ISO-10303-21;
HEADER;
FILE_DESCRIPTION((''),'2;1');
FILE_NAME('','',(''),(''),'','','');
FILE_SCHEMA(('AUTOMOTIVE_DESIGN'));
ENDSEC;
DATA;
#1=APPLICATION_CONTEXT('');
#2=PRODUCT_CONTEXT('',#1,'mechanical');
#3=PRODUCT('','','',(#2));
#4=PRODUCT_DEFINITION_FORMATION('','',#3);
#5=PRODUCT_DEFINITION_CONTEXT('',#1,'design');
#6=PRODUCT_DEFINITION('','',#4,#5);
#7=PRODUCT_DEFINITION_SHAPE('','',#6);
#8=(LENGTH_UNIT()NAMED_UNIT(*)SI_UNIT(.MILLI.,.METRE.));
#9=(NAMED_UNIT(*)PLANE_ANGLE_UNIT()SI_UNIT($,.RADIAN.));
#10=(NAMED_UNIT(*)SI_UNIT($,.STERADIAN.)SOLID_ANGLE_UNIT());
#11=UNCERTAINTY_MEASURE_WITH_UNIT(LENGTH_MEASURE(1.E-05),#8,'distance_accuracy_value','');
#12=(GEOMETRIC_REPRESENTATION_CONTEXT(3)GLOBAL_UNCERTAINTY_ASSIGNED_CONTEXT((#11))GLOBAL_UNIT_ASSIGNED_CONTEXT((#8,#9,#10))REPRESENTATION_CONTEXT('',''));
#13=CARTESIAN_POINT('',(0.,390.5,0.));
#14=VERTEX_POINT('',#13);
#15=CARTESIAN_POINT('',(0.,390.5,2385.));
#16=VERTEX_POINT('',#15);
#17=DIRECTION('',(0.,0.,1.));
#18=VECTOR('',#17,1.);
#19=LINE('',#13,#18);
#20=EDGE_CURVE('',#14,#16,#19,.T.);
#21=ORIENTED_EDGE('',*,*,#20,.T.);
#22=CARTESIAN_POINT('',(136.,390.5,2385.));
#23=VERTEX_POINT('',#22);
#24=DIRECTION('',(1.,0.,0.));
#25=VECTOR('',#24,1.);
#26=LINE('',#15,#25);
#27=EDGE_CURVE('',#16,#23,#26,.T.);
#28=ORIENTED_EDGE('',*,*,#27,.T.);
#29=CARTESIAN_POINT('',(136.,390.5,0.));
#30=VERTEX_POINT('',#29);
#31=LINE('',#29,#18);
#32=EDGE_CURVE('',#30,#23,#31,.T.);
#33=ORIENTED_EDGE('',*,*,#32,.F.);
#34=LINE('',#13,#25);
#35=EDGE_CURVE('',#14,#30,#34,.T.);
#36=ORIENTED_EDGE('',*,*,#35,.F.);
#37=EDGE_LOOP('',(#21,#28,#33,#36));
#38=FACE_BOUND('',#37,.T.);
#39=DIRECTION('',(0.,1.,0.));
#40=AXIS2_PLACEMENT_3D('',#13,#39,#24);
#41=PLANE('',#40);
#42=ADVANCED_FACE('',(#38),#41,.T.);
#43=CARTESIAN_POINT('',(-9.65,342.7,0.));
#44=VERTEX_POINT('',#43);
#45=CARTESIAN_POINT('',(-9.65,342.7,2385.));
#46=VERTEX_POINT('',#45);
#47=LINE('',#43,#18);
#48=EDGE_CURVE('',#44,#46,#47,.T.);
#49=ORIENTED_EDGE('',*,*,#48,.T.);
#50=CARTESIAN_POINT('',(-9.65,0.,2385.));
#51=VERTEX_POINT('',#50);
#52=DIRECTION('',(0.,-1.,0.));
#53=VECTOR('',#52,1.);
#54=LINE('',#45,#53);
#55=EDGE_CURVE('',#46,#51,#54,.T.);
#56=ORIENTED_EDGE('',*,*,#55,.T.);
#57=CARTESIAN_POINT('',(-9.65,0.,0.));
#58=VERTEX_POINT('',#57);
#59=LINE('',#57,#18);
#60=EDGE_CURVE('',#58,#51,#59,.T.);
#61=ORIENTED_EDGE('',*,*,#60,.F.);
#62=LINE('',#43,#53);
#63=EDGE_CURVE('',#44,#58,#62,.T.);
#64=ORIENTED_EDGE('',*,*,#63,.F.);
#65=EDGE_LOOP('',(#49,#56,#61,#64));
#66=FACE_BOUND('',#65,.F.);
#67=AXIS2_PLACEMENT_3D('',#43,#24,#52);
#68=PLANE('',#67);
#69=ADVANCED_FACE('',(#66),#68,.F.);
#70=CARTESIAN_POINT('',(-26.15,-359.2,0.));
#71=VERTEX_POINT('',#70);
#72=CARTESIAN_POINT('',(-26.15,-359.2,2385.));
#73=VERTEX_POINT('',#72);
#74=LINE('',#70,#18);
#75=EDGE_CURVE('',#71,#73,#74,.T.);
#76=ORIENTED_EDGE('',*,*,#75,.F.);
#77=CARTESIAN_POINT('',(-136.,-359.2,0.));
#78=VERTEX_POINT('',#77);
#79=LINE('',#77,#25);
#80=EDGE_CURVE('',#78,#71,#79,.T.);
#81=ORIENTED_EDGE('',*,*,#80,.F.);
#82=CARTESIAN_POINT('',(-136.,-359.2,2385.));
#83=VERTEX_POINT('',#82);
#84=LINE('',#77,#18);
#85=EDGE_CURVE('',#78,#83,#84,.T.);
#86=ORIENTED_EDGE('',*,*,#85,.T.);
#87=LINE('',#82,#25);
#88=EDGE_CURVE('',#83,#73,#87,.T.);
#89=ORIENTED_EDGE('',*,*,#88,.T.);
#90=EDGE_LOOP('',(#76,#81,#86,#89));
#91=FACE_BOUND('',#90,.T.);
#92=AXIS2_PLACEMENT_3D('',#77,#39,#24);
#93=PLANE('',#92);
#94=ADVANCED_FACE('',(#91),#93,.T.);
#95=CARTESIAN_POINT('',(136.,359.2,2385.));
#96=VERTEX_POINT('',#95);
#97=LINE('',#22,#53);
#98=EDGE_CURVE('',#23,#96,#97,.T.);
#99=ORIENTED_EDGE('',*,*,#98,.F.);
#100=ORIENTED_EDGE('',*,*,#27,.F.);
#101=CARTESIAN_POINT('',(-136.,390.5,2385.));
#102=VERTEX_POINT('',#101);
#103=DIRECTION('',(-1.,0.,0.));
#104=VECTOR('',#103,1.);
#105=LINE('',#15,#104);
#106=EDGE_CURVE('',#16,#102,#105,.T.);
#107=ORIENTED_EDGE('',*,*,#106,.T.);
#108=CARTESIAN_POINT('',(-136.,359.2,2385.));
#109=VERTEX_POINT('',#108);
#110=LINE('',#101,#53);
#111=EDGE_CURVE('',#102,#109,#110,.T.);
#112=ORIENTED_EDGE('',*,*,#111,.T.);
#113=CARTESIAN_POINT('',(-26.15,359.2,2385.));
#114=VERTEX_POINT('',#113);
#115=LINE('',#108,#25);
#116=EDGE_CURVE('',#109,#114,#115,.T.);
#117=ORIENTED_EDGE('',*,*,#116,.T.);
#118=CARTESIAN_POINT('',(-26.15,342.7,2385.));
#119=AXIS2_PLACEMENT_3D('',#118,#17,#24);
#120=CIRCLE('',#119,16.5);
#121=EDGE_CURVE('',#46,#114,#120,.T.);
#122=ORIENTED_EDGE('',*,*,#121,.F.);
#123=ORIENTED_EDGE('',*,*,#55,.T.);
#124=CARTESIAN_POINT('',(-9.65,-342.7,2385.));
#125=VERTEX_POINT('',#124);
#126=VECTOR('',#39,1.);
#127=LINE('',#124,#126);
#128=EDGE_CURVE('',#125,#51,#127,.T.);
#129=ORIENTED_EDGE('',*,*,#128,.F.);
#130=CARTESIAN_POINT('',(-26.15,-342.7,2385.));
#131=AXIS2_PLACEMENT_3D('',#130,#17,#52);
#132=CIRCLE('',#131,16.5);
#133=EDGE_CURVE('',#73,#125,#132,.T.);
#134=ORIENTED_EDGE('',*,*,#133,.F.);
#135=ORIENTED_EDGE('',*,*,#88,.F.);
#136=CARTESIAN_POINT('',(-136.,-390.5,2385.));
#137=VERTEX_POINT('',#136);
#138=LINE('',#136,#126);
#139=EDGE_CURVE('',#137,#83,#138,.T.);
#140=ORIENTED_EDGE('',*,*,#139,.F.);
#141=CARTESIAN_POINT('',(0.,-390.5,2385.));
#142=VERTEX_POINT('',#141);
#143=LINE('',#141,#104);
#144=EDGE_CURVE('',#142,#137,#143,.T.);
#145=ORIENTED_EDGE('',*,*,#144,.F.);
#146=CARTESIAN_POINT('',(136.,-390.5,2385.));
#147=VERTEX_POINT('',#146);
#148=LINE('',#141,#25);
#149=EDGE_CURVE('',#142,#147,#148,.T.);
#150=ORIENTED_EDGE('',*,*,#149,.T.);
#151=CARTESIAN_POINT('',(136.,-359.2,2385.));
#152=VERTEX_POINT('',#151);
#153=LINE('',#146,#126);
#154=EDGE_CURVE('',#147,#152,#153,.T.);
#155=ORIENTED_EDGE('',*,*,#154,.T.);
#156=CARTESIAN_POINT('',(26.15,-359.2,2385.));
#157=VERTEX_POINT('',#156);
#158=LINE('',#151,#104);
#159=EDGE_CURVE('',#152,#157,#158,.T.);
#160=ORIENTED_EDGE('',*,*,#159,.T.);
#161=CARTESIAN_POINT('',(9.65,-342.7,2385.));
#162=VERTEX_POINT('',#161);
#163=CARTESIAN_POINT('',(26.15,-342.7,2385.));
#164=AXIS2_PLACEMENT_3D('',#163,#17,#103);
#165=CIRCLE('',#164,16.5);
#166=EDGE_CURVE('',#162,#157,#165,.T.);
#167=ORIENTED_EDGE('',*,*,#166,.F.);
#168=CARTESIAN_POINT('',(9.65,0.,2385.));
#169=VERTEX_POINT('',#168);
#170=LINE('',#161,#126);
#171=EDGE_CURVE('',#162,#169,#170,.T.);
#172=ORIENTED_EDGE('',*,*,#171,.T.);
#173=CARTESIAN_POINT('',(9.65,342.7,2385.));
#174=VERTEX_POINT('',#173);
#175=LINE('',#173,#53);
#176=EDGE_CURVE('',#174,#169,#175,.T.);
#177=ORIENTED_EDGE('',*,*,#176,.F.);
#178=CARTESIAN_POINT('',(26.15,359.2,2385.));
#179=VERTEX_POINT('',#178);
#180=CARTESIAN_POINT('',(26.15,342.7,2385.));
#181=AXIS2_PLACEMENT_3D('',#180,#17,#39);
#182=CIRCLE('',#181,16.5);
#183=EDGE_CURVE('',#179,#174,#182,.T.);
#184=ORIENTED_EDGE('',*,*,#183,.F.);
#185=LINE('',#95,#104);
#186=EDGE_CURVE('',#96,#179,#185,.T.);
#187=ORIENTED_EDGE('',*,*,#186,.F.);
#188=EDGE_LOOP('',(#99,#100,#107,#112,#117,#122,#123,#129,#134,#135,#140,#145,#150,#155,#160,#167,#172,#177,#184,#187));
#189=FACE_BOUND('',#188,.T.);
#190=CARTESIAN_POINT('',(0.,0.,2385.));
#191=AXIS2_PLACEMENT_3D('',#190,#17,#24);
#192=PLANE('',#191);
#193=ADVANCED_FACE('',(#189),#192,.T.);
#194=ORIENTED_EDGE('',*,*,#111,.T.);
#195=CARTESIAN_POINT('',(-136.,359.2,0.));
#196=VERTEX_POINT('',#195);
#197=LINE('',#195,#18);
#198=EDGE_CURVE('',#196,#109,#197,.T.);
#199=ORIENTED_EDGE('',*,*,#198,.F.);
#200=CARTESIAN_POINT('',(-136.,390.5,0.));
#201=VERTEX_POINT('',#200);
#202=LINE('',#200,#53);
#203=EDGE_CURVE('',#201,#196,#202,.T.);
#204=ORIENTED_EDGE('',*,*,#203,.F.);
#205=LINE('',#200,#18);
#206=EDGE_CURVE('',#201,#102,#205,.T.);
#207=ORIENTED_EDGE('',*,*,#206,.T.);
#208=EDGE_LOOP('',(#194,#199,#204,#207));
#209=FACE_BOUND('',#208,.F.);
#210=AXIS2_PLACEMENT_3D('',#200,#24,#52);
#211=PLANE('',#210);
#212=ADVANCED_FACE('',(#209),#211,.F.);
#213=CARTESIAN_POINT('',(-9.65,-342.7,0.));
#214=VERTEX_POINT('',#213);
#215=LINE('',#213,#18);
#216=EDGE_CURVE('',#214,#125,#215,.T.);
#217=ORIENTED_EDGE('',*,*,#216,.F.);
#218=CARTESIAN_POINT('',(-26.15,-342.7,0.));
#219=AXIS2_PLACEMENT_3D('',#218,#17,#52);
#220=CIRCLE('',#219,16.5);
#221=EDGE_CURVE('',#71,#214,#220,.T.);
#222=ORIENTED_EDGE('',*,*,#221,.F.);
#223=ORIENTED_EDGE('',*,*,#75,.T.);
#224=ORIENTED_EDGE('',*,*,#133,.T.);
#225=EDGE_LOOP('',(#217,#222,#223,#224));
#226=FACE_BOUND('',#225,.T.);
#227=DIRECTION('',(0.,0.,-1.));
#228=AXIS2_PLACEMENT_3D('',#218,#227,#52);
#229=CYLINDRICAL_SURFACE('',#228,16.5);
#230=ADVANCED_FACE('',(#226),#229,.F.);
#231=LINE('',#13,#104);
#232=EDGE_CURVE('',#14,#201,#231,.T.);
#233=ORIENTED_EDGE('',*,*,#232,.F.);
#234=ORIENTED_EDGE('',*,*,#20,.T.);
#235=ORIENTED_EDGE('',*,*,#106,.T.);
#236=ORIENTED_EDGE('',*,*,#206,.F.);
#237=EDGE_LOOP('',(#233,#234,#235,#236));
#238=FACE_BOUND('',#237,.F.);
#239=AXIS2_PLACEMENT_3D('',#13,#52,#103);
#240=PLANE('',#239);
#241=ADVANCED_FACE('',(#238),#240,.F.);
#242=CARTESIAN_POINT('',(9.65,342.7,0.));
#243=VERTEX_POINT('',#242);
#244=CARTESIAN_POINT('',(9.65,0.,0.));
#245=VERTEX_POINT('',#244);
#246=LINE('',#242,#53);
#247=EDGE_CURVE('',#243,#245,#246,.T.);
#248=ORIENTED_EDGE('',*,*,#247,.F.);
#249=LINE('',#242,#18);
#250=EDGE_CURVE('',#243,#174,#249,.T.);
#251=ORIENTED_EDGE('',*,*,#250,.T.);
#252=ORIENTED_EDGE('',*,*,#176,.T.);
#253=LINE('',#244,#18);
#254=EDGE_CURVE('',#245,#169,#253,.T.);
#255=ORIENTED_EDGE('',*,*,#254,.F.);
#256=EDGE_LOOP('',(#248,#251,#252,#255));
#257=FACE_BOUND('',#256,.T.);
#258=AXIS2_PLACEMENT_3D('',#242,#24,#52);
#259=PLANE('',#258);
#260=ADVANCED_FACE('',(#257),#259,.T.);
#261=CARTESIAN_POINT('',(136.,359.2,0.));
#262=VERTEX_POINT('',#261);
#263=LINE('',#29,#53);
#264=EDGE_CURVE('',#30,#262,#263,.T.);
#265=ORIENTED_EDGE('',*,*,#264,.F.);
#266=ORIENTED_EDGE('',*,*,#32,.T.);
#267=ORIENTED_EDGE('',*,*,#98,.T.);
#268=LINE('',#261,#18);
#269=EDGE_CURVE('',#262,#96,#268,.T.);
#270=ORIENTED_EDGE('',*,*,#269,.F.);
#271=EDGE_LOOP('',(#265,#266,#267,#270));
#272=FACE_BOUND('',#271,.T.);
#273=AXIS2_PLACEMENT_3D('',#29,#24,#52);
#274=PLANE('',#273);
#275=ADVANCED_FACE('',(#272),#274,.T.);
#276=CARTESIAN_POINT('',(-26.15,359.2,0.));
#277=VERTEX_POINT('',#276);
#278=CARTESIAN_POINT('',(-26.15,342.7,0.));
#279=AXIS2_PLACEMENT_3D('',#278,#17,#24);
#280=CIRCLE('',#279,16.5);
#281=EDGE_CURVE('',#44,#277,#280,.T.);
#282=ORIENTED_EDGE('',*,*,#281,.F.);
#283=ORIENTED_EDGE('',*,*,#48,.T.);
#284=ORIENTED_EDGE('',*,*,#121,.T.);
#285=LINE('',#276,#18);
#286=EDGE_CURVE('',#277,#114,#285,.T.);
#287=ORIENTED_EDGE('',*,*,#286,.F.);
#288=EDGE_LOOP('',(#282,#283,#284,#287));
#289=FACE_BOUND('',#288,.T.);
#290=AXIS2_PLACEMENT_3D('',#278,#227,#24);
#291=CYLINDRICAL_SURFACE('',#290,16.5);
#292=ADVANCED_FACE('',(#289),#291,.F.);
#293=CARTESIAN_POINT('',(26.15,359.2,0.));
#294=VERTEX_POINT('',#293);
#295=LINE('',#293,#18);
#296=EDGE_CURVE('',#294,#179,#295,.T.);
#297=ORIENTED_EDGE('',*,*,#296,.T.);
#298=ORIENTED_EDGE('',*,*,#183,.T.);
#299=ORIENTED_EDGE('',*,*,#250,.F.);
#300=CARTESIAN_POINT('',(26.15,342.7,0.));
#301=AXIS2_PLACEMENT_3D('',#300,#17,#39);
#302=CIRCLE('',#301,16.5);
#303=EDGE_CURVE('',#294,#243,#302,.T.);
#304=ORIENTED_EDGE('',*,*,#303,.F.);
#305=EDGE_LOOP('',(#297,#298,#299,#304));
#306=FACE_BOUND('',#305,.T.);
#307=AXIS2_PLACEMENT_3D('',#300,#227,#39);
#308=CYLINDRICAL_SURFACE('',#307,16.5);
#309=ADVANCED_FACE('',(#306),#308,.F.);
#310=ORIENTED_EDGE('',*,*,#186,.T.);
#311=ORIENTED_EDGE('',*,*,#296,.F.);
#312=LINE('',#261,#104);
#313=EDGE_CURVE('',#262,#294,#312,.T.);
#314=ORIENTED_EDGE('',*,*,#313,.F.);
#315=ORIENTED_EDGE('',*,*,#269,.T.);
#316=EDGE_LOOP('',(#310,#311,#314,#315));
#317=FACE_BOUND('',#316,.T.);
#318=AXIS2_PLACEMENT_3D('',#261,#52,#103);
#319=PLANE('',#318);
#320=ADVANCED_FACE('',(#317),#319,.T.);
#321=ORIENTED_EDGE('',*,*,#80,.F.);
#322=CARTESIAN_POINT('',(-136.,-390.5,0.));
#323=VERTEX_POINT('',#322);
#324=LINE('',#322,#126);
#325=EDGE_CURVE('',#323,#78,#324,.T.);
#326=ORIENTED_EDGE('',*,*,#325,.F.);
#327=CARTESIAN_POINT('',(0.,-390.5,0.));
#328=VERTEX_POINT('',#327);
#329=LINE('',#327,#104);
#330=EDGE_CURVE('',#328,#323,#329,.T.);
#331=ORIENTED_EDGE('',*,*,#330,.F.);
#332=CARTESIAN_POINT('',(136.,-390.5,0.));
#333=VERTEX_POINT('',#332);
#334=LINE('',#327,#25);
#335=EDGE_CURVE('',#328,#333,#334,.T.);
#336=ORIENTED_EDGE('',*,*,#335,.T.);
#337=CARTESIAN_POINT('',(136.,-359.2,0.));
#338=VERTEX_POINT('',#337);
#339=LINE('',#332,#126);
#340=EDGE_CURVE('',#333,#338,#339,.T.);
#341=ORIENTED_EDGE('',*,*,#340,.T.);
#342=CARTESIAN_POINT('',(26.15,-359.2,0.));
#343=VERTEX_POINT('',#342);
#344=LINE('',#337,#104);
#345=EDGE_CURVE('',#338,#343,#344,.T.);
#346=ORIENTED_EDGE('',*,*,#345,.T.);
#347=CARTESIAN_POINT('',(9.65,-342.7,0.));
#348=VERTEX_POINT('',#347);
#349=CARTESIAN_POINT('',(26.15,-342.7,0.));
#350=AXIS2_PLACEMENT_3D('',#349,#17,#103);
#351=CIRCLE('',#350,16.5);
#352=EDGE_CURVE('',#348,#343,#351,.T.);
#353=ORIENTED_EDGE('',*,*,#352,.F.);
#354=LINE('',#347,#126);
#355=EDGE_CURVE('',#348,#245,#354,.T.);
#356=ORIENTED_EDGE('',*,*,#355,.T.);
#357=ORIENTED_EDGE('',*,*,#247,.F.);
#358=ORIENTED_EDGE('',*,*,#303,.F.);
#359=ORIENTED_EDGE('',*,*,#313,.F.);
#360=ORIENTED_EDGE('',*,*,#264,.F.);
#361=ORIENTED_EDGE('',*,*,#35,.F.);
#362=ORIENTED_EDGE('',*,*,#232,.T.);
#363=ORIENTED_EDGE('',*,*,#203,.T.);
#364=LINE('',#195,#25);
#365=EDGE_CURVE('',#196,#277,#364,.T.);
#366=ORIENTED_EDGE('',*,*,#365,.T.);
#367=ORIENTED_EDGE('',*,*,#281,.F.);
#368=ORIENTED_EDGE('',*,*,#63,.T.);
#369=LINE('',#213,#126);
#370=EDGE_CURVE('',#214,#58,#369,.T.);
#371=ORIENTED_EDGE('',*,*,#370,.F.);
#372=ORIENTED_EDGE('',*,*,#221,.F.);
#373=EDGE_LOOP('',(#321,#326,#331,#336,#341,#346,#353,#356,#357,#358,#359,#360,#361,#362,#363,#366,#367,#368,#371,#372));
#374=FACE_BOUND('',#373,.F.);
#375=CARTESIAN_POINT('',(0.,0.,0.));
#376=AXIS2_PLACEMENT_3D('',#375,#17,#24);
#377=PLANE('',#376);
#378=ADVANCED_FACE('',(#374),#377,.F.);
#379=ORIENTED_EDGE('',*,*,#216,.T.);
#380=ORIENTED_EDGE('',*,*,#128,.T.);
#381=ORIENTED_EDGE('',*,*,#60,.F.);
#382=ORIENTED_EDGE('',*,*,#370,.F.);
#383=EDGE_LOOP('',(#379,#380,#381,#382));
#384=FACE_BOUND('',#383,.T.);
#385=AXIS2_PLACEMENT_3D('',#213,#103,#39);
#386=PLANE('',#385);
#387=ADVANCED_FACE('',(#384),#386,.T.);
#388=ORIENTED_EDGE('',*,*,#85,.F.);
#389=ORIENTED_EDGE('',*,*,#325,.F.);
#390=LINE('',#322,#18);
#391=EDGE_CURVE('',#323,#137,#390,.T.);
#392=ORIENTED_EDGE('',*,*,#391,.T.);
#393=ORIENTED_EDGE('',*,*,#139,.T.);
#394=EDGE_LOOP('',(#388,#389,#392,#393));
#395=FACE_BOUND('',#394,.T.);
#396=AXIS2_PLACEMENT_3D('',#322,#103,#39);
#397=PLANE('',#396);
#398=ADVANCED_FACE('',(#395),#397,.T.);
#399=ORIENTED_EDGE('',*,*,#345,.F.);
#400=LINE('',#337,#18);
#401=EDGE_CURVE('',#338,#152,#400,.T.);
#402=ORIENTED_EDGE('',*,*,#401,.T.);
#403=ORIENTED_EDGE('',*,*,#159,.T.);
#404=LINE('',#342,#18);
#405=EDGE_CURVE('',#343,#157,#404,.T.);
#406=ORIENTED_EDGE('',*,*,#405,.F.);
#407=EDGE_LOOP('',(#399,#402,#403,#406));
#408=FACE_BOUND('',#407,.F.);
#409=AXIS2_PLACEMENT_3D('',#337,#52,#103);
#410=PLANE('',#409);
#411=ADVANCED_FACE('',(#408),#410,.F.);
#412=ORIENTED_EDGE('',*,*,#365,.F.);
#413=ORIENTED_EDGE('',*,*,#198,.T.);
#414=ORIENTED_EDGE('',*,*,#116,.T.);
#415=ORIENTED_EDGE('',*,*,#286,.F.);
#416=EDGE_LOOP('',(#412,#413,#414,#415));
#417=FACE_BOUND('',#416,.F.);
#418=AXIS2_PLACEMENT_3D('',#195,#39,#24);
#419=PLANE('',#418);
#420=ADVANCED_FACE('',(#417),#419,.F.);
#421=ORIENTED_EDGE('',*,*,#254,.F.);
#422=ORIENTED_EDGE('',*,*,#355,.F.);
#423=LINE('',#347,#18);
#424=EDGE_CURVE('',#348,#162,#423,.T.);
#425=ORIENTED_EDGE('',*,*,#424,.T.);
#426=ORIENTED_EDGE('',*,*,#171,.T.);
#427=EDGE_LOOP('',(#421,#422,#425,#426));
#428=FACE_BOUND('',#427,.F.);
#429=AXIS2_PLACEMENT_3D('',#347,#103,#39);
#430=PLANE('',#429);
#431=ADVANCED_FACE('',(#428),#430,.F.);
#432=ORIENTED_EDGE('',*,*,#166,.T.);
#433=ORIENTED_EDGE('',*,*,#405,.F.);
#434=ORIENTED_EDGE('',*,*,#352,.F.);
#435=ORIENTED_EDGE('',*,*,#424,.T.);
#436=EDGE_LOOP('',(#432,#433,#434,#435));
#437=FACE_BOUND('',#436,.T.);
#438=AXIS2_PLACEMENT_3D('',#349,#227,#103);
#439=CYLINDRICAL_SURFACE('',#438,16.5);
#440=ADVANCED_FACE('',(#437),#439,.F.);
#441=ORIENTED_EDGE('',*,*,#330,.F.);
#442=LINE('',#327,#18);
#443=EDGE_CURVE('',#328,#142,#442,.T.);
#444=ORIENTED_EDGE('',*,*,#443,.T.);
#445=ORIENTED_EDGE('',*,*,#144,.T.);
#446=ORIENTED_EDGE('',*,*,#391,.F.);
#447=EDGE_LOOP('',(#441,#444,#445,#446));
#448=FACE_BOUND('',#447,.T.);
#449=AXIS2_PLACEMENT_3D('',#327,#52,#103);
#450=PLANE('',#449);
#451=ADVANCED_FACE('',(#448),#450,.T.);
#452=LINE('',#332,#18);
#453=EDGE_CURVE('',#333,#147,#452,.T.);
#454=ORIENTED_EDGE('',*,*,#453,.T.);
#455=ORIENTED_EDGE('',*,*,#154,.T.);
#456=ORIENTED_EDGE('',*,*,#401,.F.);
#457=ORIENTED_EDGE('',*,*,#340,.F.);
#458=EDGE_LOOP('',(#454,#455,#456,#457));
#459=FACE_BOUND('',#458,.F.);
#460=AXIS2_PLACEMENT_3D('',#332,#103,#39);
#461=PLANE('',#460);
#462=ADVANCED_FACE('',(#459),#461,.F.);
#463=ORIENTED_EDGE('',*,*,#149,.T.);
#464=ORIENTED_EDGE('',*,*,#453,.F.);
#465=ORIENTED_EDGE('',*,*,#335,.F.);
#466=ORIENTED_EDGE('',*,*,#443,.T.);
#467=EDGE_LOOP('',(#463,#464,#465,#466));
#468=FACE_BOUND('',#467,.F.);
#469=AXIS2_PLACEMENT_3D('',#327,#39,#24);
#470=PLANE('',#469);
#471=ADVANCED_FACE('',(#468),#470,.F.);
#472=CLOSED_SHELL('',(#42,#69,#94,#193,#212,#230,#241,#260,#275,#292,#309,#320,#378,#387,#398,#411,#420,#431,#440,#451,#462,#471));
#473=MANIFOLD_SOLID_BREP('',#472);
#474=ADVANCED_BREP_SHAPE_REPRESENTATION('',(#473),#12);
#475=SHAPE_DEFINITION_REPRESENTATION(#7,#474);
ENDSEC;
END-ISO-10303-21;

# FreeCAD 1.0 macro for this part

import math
import FreeCAD as App
import Part
import Sketcher

V = App.Vector

doc = App.newDocument("Part")
body = doc.addObject("PartDesign::Body", "Body")

sketch1 = body.newObject("Sketcher::SketchObject", "Sketch")
sketch1.AttachmentSupport = (doc.getObject("XY_Plane"), [""])
sketch1.MapMode = "FlatFace"
sketch1.addGeometry(Part.LineSegment(V(-136, -359, 0), V(-136, -390, 0)), False)
sketch1.addGeometry(Part.LineSegment(V(-136, -390, 0), V(136, -390, 0)), False)
sketch1.addGeometry(Part.LineSegment(V(136, -390, 0), V(136, -359, 0)), False)
sketch1.addGeometry(Part.LineSegment(V(136, -359, 0), V(26, -359, 0)), False)
sketch1.addGeometry(Part.ArcOfCircle(Part.Circle(V(26, -343, 0), V(0, 0, 1), 16), math.radians(180), math.radians(270)), False)
sketch1.addGeometry(Part.LineSegment(V(10, -343, 0), V(10, 343, 0)), False)
sketch1.addGeometry(Part.ArcOfCircle(Part.Circle(V(26, 343, 0), V(0, 0, 1), 16), math.radians(90), math.radians(180)), False)
sketch1.addGeometry(Part.LineSegment(V(26, 359, 0), V(136, 359, 0)), False)
sketch1.addGeometry(Part.LineSegment(V(136, 359, 0), V(136, 390, 0)), False)
sketch1.addGeometry(Part.LineSegment(V(136, 390, 0), V(-136, 390, 0)), False)
sketch1.addGeometry(Part.LineSegment(V(-136, 390, 0), V(-136, 359, 0)), False)
sketch1.addGeometry(Part.LineSegment(V(-136, 359, 0), V(-26, 359, 0)), False)
sketch1.addGeometry(Part.ArcOfCircle(Part.Circle(V(-26, 343, 0), V(0, 0, 1), 16), math.radians(0), math.radians(90)), False)
sketch1.addGeometry(Part.LineSegment(V(-10, 343, 0), V(-10, -343, 0)), False)
sketch1.addGeometry(Part.ArcOfCircle(Part.Circle(V(-26, -343, 0), V(0, 0, 1), 16), math.radians(-90), math.radians(0)), False)
sketch1.addGeometry(Part.LineSegment(V(-26, -359, 0), V(-136, -359, 0)), False)
sketch1.addConstraint(Sketcher.Constraint("Coincident", 0, 2, 1, 1))
sketch1.addConstraint(Sketcher.Constraint("Coincident", 1, 2, 2, 1))
sketch1.addConstraint(Sketcher.Constraint("Coincident", 2, 2, 3, 1))
sketch1.addConstraint(Sketcher.Constraint("Tangent", 3, 2, 4, 2))
sketch1.addConstraint(Sketcher.Constraint("Tangent", 4, 1, 5, 1))
sketch1.addConstraint(Sketcher.Constraint("Tangent", 5, 2, 6, 2))
sketch1.addConstraint(Sketcher.Constraint("Tangent", 6, 1, 7, 1))
sketch1.addConstraint(Sketcher.Constraint("Coincident", 7, 2, 8, 1))
sketch1.addConstraint(Sketcher.Constraint("Coincident", 8, 2, 9, 1))
sketch1.addConstraint(Sketcher.Constraint("Coincident", 9, 2, 10, 1))
sketch1.addConstraint(Sketcher.Constraint("Coincident", 10, 2, 11, 1))
sketch1.addConstraint(Sketcher.Constraint("Tangent", 11, 2, 12, 2))
sketch1.addConstraint(Sketcher.Constraint("Tangent", 12, 1, 13, 1))
sketch1.addConstraint(Sketcher.Constraint("Tangent", 13, 2, 14, 2))
sketch1.addConstraint(Sketcher.Constraint("Tangent", 14, 1, 15, 1))
sketch1.addConstraint(Sketcher.Constraint("Coincident", 15, 2, 0, 1))
sketch1.addConstraint(Sketcher.Constraint("Vertical", 0))
sketch1.addConstraint(Sketcher.Constraint("Horizontal", 1))
sketch1.addConstraint(Sketcher.Constraint("Vertical", 2))
sketch1.addConstraint(Sketcher.Constraint("Horizontal", 3))
sketch1.addConstraint(Sketcher.Constraint("Vertical", 5))
sketch1.addConstraint(Sketcher.Constraint("Horizontal", 7))
sketch1.addConstraint(Sketcher.Constraint("Vertical", 8))
sketch1.addConstraint(Sketcher.Constraint("Horizontal", 9))
sketch1.addConstraint(Sketcher.Constraint("Vertical", 10))
sketch1.addConstraint(Sketcher.Constraint("Horizontal", 11))
sketch1.addConstraint(Sketcher.Constraint("Vertical", 13))
sketch1.addConstraint(Sketcher.Constraint("Horizontal", 15))
sketch1.addConstraint(Sketcher.Constraint("Equal", 4, 6))
sketch1.addConstraint(Sketcher.Constraint("Equal", 6, 12))
sketch1.addConstraint(Sketcher.Constraint("Equal", 12, 14))
sketch1.addConstraint(Sketcher.Constraint("Symmetric", 4, 3, 12, 3, -1, 1))
sketch1.addConstraint(Sketcher.Constraint("Symmetric", 0, 2, 8, 2, -1, 1))
sketch1.addConstraint(Sketcher.Constraint("Symmetric", 7, 2, 10, 2, -2))
sketch1.addConstraint(Sketcher.Constraint("Symmetric", 2, 2, 15, 2, -2))
sketch1.addConstraint(Sketcher.Constraint("Radius", 4, 16.5))
sketch1.addConstraint(Sketcher.Constraint("DistanceY", 0, 2, 0, 1, 31.3))
sketch1.addConstraint(Sketcher.Constraint("DistanceX", 0, 2, -1, 1, 136.0))
sketch1.addConstraint(Sketcher.Constraint("DistanceY", 0, 2, -1, 1, 390.5))
sketch1.addConstraint(Sketcher.Constraint("DistanceX", -1, 1, 4, 1, 9.65))
pad1 = body.newObject("PartDesign::Pad", "Pad")
pad1.Profile = sketch1
pad1.Length = 2385

doc.recompute()
